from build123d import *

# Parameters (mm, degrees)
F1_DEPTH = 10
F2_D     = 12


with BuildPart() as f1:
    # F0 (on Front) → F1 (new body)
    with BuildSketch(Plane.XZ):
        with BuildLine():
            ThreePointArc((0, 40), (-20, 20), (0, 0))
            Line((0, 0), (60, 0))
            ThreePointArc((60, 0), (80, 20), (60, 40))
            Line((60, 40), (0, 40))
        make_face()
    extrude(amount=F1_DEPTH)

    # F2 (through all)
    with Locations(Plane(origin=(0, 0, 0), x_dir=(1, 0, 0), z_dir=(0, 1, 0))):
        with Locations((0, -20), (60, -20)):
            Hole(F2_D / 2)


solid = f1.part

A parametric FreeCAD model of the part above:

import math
import FreeCAD as App
import Part
import Sketcher

V = App.Vector
Q = App.Units.Quantity

doc = App.newDocument("Part")
params = doc.addObject("Spreadsheet::Sheet", "Params")
for row, (alias, value) in enumerate([
    ("sketch1_radius", "20 mm"),
    ("sketch1_width", "60 mm"),
    ("pad1_length", "10 mm"),
    ("sketch2_diameter", "12 mm"),
    ("hole_diameter", "12 mm"),
], start=1):
    params.set(f"A{row}", alias)
    params.set(f"B{row}", "=" + value)
    params.setAlias(f"B{row}", alias)

body = doc.addObject("PartDesign::Body", "Body")

sketch1 = body.newObject("Sketcher::SketchObject", "Sketch")
sketch1.AttachmentSupport = (doc.getObject("XZ_Plane"), [""])
sketch1.MapMode = "FlatFace"
sketch1.addGeometry([
    Part.ArcOfCircle(Part.Circle(V(0, 20, 0), V(0, 0, 1), 20), math.radians(90), math.radians(270)),
    Part.LineSegment(V(0, 0, 0), V(60, 0, 0)),
    Part.ArcOfCircle(Part.Circle(V(60, 20, 0), V(0, 0, 1), 20), math.radians(-90), math.radians(90)),
    Part.LineSegment(V(60, 40, 0), V(0, 40, 0)),
], False)
sketch1.addConstraint([
    Sketcher.Constraint("Tangent", 0, 2, 1, 1),
    Sketcher.Constraint("Tangent", 1, 2, 2, 1),
    Sketcher.Constraint("Tangent", 2, 2, 3, 1),
    Sketcher.Constraint("Tangent", 3, 2, 0, 1),
    Sketcher.Constraint("Horizontal", 1),
    Sketcher.Constraint("Horizontal", 3),
    Sketcher.Constraint("Coincident", 0, 2, -1, 1),
    Sketcher.Constraint("Radius", 0, Q("20 mm")),
    Sketcher.Constraint("DistanceX", 1, 1, 1, 2, Q("60 mm")),
])
sketch1.setExpression("Constraints[7]", "Params.sketch1_radius")
sketch1.setExpression("Constraints[8]", "Params.sketch1_width")
pad1 = body.newObject("PartDesign::Pad", "Pad")
pad1.Profile = sketch1
pad1.setExpression("Length", "Params.pad1_length")

sketch2 = body.newObject("Sketcher::SketchObject", "Sketch001")
sketch2.AttachmentSupport = (doc.getObject("XZ_Plane"), [""])
sketch2.MapMode = "FlatFace"
sketch2.addGeometry([
    Part.Circle(V(0, 20, 0), V(0, 0, 1), 6),
    Part.Circle(V(60, 20, 0), V(0, 0, 1), 6),
], False)
sketch2.addConstraint([
    Sketcher.Constraint("Equal", 0, 1),
    Sketcher.Constraint("PointOnObject", 0, 3, -2),
    Sketcher.Constraint("Horizontal", 0, 3, 1, 3),
    Sketcher.Constraint("Diameter", 0, Q("12 mm")),
    Sketcher.Constraint("DistanceY", -1, 1, 0, 3, Q("20 mm")),
    Sketcher.Constraint("DistanceX", -1, 1, 1, 3, Q("60 mm")),
])
sketch2.setExpression("Constraints[3]", "Params.sketch2_diameter")
doc.recompute()
hole = body.newObject("PartDesign::Hole", "Hole")
hole.Profile = sketch2
hole.ThreadType = "None"
hole.setExpression("Diameter", "Params.hole_diameter")
hole.DepthType = "ThroughAll"
hole.Reversed = True

doc.recompute()
